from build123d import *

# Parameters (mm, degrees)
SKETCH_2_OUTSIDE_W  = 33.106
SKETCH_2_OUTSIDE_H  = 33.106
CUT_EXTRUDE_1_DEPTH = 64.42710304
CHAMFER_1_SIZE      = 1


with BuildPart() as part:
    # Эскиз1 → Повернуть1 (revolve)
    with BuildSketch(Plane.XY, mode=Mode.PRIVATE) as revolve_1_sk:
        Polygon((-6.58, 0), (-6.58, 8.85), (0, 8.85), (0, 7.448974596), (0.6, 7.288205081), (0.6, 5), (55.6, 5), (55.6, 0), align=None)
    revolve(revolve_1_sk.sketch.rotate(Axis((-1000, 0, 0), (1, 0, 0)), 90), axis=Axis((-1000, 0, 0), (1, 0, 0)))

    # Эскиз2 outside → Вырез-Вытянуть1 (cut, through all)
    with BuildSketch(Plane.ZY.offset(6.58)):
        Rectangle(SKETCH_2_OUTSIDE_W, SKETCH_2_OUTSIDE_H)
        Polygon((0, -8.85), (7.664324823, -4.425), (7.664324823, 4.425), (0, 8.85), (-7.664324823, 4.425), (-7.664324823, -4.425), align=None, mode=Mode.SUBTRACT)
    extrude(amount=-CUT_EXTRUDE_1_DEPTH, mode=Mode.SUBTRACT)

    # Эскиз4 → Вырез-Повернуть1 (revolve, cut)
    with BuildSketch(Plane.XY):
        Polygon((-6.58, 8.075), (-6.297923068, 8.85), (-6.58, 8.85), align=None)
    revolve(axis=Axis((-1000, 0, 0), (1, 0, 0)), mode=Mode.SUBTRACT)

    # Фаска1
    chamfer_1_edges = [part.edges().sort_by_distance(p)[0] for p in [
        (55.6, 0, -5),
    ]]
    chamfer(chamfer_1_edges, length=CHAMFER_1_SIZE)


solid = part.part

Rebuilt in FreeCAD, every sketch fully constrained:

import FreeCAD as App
import Part
import Sketcher
Q = App.Units.Quantity


def edges_at(feature, points):
    """Names of the edges that pass closest to the given points."""
    edges = feature.Shape.Edges
    near = lambda p: min(range(len(edges)), key=lambda i: edges[i].distToShape(Part.Vertex(*p))[0])
    return sorted({f"Edge{near(p) + 1}" for p in points})

doc = App.newDocument("Part")
body = doc.addObject("PartDesign::Body", "Body")

sketch1 = body.newObject("Sketcher::SketchObject", "Sketch")
sketch1.AttachmentSupport = (doc.getObject("XY_Plane"), [""])
sketch1.MapMode = "FlatFace"
sketch1.addGeometry([
    Part.LineSegment(App.Vector(-6.58, 8.85, 0), App.Vector(-6.58, 0, 0)),
    Part.LineSegment(App.Vector(-6.58, 0, 0), App.Vector(55.6, 0, 0)),
    Part.LineSegment(App.Vector(55.6, 0, 0), App.Vector(55.6, 5, 0)),
    Part.LineSegment(App.Vector(55.6, 5, 0), App.Vector(0.6, 5, 0)),
    Part.LineSegment(App.Vector(0.6, 5, 0), App.Vector(0.6, 7.288205, 0)),
    Part.LineSegment(App.Vector(0.6, 7.288205, 0), App.Vector(0, 7.448975, 0)),
    Part.LineSegment(App.Vector(0, 7.448975, 0), App.Vector(0, 8.85, 0)),
    Part.LineSegment(App.Vector(0, 8.85, 0), App.Vector(-6.58, 8.85, 0)),
], False)
sketch1.addConstraint([
    Sketcher.Constraint("Coincident", 0, 2, 1, 1),
    Sketcher.Constraint("Coincident", 1, 2, 2, 1),
    Sketcher.Constraint("Coincident", 2, 2, 3, 1),
    Sketcher.Constraint("Coincident", 3, 2, 4, 1),
    Sketcher.Constraint("Coincident", 4, 2, 5, 1),
    Sketcher.Constraint("Coincident", 5, 2, 6, 1),
    Sketcher.Constraint("Coincident", 6, 2, 7, 1),
    Sketcher.Constraint("Coincident", 7, 2, 0, 1),
    Sketcher.Constraint("Vertical", 0),
    Sketcher.Constraint("Horizontal", 1),
    Sketcher.Constraint("Vertical", 2),
    Sketcher.Constraint("Horizontal", 3),
    Sketcher.Constraint("Vertical", 4),
    Sketcher.Constraint("Vertical", 6),
    Sketcher.Constraint("Horizontal", 7),
    Sketcher.Constraint("PointOnObject", 0, 2, -1),
    Sketcher.Constraint("PointOnObject", 5, 2, -2),
    Sketcher.Constraint("DistanceX", 3, 2, 3, 1, 55.0),
    Sketcher.Constraint("DistanceY", 2, 1, 2, 2, 5.0),
    Sketcher.Constraint("Angle", 5, Q("165 deg")),
    Sketcher.Constraint("DistanceX", 1, 1, 1, 2, 62.18),
    Sketcher.Constraint("DistanceX", 7, 2, 7, 1, 6.58),
    Sketcher.Constraint("DistanceY", 0, 2, 0, 1, 8.85),
    Sketcher.Constraint("DistanceY", 4, 1, 4, 2, 2.288205),
])
revolution = body.newObject("PartDesign::Revolution", "Revolution")
revolution.Profile = sketch1
revolution.ReferenceAxis = (sketch1, ["H_Axis"])
revolution.Angle = 360

sketch2 = body.newObject("Sketcher::SketchObject", "Sketch001")
sketch2.AttachmentSupport = (doc.getObject("YZ_Plane"), [""])
sketch2.MapMode = "FlatFace"
sketch2.AttachmentOffset = App.Placement(App.Vector(0, 0, -6.58), App.Rotation())
sketch2.addGeometry([
    Part.LineSegment(App.Vector(16.553, -16.553, 0), App.Vector(-16.553, -16.553, 0)),
    Part.LineSegment(App.Vector(-16.553, -16.553, 0), App.Vector(-16.553, 16.553, 0)),
    Part.LineSegment(App.Vector(-16.553, 16.553, 0), App.Vector(16.553, 16.553, 0)),
    Part.LineSegment(App.Vector(16.553, 16.553, 0), App.Vector(16.553, -16.553, 0)),
    Part.LineSegment(App.Vector(-4.425, 7.664325, 0), App.Vector(-8.85, 0, 0)),
    Part.LineSegment(App.Vector(-8.85, 0, 0), App.Vector(-4.425, -7.664325, 0)),
    Part.LineSegment(App.Vector(-4.425, -7.664325, 0), App.Vector(4.425, -7.664325, 0)),
    Part.LineSegment(App.Vector(4.425, -7.664325, 0), App.Vector(8.85, 0, 0)),
    Part.LineSegment(App.Vector(8.85, 0, 0), App.Vector(4.425, 7.664325, 0)),
    Part.LineSegment(App.Vector(4.425, 7.664325, 0), App.Vector(-4.425, 7.664325, 0)),
], False)
sketch2.addConstraint([
    Sketcher.Constraint("Coincident", 0, 2, 1, 1),
    Sketcher.Constraint("Coincident", 1, 2, 2, 1),
    Sketcher.Constraint("Coincident", 2, 2, 3, 1),
    Sketcher.Constraint("Coincident", 3, 2, 0, 1),
    Sketcher.Constraint("Coincident", 4, 2, 5, 1),
    Sketcher.Constraint("Coincident", 5, 2, 6, 1),
    Sketcher.Constraint("Coincident", 6, 2, 7, 1),
    Sketcher.Constraint("Coincident", 7, 2, 8, 1),
    Sketcher.Constraint("Coincident", 8, 2, 9, 1),
    Sketcher.Constraint("Coincident", 9, 2, 4, 1),
    Sketcher.Constraint("Horizontal", 0),
    Sketcher.Constraint("Vertical", 1),
    Sketcher.Constraint("Horizontal", 2),
    Sketcher.Constraint("Vertical", 3),
    Sketcher.Constraint("Horizontal", 6),
    Sketcher.Constraint("Horizontal", 9),
    Sketcher.Constraint("Symmetric", 0, 2, 2, 2, -1, 1),
    Sketcher.Constraint("Symmetric", 4, 2, 7, 2, -1, 1),
    Sketcher.Constraint("Symmetric", 5, 2, 8, 2, -1, 1),
    Sketcher.Constraint("PointOnObject", 4, 2, -1),
    Sketcher.Constraint("Parallel", 4, 7),
    Sketcher.Constraint("Vertical", 6, 2, 8, 2),
    Sketcher.Constraint("Equal", 2, 1),
    Sketcher.Constraint("Angle", 4, Q("-120 deg")),
    Sketcher.Constraint("DistanceX", 6, 1, 6, 2, 8.85),
    Sketcher.Constraint("DistanceX", 4, 2, 7, 2, 17.7),
    Sketcher.Constraint("DistanceX", 0, 2, 0, 1, 33.106),
])
pocket1 = body.newObject("PartDesign::Pocket", "Pocket")
pocket1.Profile = sketch2
pocket1.Type = "ThroughAll"
pocket1.Reversed = True

sketch3 = body.newObject("Sketcher::SketchObject", "Sketch002")
sketch3.AttachmentSupport = (doc.getObject("XY_Plane"), [""])
sketch3.MapMode = "FlatFace"
sketch3.addGeometry([
    Part.LineSegment(App.Vector(-6.58, 8.075, 0), App.Vector(-6.297923, 8.85, 0)),
    Part.LineSegment(App.Vector(-6.297923, 8.85, 0), App.Vector(-6.58, 8.85, 0)),
    Part.LineSegment(App.Vector(-6.58, 8.85, 0), App.Vector(-6.58, 8.075, 0)),
], False)
sketch3.addConstraint([
    Sketcher.Constraint("Coincident", 0, 2, 1, 1),
    Sketcher.Constraint("Coincident", 1, 2, 2, 1),
    Sketcher.Constraint("Coincident", 2, 2, 0, 1),
    Sketcher.Constraint("Horizontal", 1),
    Sketcher.Constraint("Vertical", 2),
    Sketcher.Constraint("Angle", 0, Q("70 deg")),
    Sketcher.Constraint("DistanceY", 2, 2, 2, 1, 0.775),
    Sketcher.Constraint("DistanceY", -1, 1, 0, 2, 8.85),
    Sketcher.Constraint("DistanceX", 1, 2, -1, 1, 6.58),
])
groove = body.newObject("PartDesign::Groove", "Groove")
groove.Profile = sketch3
groove.ReferenceAxis = (sketch3, ["H_Axis"])
groove.Angle = 360
doc.recompute()

chamfer = body.newObject("PartDesign::Chamfer", "Chamfer")
chamfer.Base = (groove, edges_at(groove, [(55.6, 0, -5)]))
chamfer.Size = 1

doc.recompute()
